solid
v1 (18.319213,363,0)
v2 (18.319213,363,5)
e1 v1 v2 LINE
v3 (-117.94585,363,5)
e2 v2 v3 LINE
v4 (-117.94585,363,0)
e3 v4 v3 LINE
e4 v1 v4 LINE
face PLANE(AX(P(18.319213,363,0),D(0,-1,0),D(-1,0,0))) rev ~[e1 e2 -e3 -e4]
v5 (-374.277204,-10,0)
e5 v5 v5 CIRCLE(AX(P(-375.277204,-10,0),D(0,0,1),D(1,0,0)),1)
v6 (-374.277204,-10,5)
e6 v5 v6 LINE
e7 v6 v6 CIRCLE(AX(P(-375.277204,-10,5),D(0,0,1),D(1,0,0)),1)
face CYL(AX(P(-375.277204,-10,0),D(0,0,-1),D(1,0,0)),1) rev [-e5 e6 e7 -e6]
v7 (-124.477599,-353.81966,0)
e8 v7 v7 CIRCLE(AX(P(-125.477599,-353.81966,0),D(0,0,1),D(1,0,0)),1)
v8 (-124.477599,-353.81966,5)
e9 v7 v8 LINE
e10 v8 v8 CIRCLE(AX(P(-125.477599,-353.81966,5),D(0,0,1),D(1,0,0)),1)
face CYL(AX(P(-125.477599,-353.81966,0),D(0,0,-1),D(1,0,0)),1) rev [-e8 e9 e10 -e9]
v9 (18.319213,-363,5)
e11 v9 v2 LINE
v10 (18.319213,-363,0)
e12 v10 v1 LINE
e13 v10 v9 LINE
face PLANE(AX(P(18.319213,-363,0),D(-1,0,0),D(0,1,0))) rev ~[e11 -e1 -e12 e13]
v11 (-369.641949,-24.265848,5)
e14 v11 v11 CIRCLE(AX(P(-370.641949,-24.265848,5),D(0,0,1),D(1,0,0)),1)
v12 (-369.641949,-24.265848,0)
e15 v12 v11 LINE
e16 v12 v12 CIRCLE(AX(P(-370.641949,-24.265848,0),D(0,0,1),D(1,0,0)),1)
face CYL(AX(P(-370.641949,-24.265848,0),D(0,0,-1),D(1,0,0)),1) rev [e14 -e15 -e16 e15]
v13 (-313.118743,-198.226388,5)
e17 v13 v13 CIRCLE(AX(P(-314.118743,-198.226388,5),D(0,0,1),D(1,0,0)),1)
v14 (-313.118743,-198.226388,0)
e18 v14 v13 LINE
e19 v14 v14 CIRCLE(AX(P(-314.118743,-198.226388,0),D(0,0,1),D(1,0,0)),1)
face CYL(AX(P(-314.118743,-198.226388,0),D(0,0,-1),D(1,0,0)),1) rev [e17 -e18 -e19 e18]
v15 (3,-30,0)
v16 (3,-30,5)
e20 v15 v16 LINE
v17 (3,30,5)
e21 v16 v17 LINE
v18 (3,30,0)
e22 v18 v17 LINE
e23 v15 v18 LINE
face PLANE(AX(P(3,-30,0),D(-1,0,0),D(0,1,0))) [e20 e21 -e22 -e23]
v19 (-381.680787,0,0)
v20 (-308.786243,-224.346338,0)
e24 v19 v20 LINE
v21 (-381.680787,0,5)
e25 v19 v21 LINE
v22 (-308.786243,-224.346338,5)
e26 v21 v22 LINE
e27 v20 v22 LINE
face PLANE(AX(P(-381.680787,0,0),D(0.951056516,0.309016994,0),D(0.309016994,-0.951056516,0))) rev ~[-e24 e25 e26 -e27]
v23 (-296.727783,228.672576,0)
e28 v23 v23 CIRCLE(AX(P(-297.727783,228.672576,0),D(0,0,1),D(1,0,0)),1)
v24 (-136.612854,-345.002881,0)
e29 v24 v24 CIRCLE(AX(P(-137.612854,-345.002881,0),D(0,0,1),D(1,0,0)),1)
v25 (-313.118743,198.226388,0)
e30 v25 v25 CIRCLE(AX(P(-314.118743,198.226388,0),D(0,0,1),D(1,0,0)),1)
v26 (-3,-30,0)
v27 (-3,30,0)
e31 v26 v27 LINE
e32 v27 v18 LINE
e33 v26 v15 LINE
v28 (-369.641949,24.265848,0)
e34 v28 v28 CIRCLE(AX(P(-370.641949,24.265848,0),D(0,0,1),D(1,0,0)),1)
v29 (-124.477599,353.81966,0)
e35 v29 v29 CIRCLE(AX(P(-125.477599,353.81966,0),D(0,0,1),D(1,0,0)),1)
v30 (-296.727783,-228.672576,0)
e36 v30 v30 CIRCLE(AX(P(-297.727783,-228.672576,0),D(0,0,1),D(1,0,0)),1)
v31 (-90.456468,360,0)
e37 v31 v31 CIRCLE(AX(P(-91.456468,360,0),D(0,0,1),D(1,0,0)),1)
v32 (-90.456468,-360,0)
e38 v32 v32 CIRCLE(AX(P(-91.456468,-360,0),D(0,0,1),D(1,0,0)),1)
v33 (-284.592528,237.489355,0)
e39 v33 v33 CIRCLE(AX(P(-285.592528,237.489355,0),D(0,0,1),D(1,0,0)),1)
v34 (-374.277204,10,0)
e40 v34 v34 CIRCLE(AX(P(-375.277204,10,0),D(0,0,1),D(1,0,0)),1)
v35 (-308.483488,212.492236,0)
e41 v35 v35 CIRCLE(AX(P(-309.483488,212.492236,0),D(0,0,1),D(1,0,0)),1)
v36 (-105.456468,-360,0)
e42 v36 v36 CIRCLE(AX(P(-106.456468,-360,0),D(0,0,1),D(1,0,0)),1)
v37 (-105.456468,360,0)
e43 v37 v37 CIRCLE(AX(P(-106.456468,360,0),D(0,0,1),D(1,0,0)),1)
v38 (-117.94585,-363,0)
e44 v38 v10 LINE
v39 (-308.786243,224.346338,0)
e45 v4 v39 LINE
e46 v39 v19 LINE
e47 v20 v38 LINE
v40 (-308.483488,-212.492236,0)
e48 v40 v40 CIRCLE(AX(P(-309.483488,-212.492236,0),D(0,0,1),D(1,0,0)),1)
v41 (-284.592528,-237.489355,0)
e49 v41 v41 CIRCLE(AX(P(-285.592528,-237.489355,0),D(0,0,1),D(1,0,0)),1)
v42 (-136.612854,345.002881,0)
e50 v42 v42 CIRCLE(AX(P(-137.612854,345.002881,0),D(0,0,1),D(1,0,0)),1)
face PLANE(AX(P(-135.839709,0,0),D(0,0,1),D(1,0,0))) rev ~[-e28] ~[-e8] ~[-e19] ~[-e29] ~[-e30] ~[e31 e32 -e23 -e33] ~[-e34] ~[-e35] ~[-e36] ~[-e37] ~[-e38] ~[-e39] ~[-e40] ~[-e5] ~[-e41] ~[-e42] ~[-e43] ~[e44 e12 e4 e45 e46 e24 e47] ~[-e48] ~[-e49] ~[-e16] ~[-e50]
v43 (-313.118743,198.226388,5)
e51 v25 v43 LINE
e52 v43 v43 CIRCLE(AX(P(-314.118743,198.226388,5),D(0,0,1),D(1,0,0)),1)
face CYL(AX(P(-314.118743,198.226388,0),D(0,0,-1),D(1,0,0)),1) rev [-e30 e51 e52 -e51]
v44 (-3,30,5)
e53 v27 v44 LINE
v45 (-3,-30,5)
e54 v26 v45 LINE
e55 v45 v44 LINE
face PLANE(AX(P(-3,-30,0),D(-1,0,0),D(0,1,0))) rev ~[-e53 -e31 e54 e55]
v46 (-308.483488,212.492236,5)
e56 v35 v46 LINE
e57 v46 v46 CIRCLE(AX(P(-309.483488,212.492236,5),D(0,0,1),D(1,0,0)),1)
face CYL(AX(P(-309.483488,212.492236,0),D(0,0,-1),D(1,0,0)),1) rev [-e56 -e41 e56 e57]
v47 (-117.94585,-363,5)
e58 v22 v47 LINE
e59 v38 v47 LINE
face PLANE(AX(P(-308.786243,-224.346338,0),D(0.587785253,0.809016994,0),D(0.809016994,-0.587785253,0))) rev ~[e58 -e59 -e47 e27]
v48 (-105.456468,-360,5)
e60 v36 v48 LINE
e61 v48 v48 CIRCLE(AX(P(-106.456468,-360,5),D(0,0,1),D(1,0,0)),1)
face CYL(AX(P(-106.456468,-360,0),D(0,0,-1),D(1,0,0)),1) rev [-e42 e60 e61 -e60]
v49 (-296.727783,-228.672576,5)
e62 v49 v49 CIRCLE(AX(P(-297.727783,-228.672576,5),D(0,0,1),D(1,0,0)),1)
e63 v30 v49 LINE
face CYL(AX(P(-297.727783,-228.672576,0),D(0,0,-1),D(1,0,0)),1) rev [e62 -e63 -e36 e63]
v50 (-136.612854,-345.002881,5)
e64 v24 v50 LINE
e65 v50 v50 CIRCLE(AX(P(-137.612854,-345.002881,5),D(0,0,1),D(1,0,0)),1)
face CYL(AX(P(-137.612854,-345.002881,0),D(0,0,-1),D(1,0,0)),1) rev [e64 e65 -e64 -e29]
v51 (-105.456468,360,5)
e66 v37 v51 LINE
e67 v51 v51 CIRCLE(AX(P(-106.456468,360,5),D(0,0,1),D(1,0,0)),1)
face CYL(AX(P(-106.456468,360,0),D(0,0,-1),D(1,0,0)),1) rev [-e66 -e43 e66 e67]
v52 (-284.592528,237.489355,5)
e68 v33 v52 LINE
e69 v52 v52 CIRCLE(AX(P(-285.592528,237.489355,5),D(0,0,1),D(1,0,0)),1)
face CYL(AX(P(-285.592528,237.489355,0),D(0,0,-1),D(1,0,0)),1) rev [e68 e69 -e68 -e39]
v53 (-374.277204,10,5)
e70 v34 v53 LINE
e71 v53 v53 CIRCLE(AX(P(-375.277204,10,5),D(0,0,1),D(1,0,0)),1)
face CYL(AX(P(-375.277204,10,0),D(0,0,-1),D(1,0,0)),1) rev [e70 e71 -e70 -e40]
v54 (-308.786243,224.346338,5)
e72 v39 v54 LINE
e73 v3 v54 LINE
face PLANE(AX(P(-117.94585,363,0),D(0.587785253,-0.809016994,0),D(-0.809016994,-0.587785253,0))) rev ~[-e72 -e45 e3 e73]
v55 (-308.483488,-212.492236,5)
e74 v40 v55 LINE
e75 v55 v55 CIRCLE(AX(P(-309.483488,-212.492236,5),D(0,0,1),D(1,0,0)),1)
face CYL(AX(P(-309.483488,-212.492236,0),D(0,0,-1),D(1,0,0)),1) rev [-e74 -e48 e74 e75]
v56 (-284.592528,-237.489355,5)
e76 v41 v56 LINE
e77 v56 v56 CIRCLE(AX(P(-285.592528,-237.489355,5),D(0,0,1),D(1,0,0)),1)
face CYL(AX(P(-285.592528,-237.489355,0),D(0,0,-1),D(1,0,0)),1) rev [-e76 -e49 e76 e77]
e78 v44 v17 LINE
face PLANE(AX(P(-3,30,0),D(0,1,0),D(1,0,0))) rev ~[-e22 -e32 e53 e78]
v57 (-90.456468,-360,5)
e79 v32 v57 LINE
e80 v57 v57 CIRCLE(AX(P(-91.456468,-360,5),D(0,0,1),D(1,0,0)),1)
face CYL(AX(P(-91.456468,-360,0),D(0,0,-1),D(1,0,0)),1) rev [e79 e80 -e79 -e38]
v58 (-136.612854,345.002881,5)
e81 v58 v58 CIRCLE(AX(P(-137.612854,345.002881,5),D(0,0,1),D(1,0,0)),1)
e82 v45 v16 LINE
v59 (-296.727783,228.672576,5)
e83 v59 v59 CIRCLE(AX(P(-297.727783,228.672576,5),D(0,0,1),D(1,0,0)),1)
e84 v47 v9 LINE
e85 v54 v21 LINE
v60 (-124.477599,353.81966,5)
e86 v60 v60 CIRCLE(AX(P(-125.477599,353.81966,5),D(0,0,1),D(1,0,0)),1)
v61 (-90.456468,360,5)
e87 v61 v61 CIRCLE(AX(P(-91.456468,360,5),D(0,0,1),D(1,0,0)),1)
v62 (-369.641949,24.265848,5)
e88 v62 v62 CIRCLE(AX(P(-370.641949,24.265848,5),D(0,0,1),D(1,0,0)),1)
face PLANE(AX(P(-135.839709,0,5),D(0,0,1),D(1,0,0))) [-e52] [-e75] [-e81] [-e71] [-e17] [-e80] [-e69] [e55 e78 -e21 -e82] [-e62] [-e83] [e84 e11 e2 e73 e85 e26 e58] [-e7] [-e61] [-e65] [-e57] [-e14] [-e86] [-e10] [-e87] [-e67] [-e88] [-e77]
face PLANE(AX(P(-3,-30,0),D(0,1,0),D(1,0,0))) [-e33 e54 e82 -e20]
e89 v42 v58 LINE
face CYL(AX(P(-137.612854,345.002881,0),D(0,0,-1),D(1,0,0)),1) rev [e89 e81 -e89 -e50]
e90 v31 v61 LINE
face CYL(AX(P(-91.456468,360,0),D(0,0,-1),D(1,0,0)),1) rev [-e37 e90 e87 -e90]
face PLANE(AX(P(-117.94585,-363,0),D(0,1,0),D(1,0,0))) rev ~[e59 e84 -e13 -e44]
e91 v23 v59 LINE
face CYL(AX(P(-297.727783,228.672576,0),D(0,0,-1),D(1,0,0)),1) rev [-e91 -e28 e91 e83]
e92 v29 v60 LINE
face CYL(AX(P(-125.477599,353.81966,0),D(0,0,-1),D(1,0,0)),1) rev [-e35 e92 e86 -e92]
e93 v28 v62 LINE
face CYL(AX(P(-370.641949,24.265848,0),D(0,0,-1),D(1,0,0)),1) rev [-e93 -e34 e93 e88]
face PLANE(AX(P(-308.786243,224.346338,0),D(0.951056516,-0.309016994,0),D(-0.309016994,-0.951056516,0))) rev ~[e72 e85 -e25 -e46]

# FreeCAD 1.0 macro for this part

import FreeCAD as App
import Part
import Sketcher
from FreeCAD import Vector
Q = App.Units.Quantity


def add_polygon(sketch, points):
    """Adds a closed chain of lines whose ends are joined by coincident constraints."""
    first, n = sketch.GeometryCount, len(points)
    for a, b in zip(points, points[1:] + points[:1]):
        sketch.addGeometry(Part.LineSegment(App.Vector(*a, 0), App.Vector(*b, 0)), False)
    for i in range(n):
        sketch.addConstraint(Sketcher.Constraint("Coincident", first + i, 2, first + (i + 1) % n, 1))

doc = App.newDocument("Part")
body = doc.addObject("PartDesign::Body", "Body")

# Sketch on XY plane
sketch1 = doc.addObject("Sketcher::SketchObject", "Sketch")
body.addObject(sketch1)
sketch1.AttachmentSupport = (doc.XY_Plane, [""])
sketch1.MapMode = "FlatFace"
add_polygon(sketch1, [(-117.9, -363), (18.3, -363), (18.3, 363), (-117.9, 363), (-308.8, 224.3), (-381.7, 0), (-308.8, -224.3)])  # lines 0-6
sketch1.addGeometry(Part.Circle(Vector(-297.7, -228.7, 0), Vector(0, 0, 1), 1), False)  # 7
sketch1.addGeometry(Part.Circle(Vector(-285.6, -237.5, 0), Vector(0, 0, 1), 1), False)  # 8
sketch1.addGeometry(Part.Circle(Vector(-309.5, -212.5, 0), Vector(0, 0, 1), 1), False)  # 9
sketch1.addGeometry(Part.Circle(Vector(-314.1, -198.2, 0), Vector(0, 0, 1), 1), False)  # 10
sketch1.addGeometry(Part.Circle(Vector(-370.6, -24.3, 0), Vector(0, 0, 1), 1), False)  # 11
sketch1.addGeometry(Part.Circle(Vector(-375.3, -10, 0), Vector(0, 0, 1), 1), False)  # 12
sketch1.addGeometry(Part.Circle(Vector(-137.6, -345, 0), Vector(0, 0, 1), 1), False)  # 13
sketch1.addGeometry(Part.Circle(Vector(-125.5, -353.8, 0), Vector(0, 0, 1), 1), False)  # 14
sketch1.addGeometry(Part.Circle(Vector(-106.5, -360, 0), Vector(0, 0, 1), 1), False)  # 15
sketch1.addGeometry(Part.Circle(Vector(-91.5, -360, 0), Vector(0, 0, 1), 1), False)  # 16
sketch1.addGeometry(Part.Circle(Vector(-375.3, 10, 0), Vector(0, 0, 1), 1), False)  # 17
sketch1.addGeometry(Part.Circle(Vector(-370.6, 24.3, 0), Vector(0, 0, 1), 1), False)  # 18
sketch1.addGeometry(Part.Circle(Vector(-314.1, 198.2, 0), Vector(0, 0, 1), 1), False)  # 19
sketch1.addGeometry(Part.Circle(Vector(-309.5, 212.5, 0), Vector(0, 0, 1), 1), False)  # 20
sketch1.addGeometry(Part.Circle(Vector(-297.7, 228.7, 0), Vector(0, 0, 1), 1), False)  # 21
sketch1.addGeometry(Part.Circle(Vector(-285.6, 237.5, 0), Vector(0, 0, 1), 1), False)  # 22
add_polygon(sketch1, [(3, -30), (-3, -30), (-3, 30), (3, 30)])  # lines 23-26
sketch1.addGeometry(Part.Circle(Vector(-137.6, 345, 0), Vector(0, 0, 1), 1), False)  # 27
sketch1.addGeometry(Part.Circle(Vector(-125.5, 353.8, 0), Vector(0, 0, 1), 1), False)  # 28
sketch1.addGeometry(Part.Circle(Vector(-106.5, 360, 0), Vector(0, 0, 1), 1), False)  # 29
sketch1.addGeometry(Part.Circle(Vector(-91.5, 360, 0), Vector(0, 0, 1), 1), False)  # 30
sketch1.addConstraint(Sketcher.Constraint("Horizontal", 0))
sketch1.addConstraint(Sketcher.Constraint("Vertical", 1))
sketch1.addConstraint(Sketcher.Constraint("Horizontal", 2))
sketch1.addConstraint(Sketcher.Constraint("Horizontal", 23))
sketch1.addConstraint(Sketcher.Constraint("Vertical", 24))
sketch1.addConstraint(Sketcher.Constraint("Horizontal", 25))
sketch1.addConstraint(Sketcher.Constraint("Vertical", 26))
sketch1.addConstraint(Sketcher.Constraint("Equal", 7, 8))
sketch1.addConstraint(Sketcher.Constraint("Equal", 8, 9))
sketch1.addConstraint(Sketcher.Constraint("Equal", 9, 10))
sketch1.addConstraint(Sketcher.Constraint("Equal", 10, 11))
sketch1.addConstraint(Sketcher.Constraint("Equal", 11, 12))
sketch1.addConstraint(Sketcher.Constraint("Equal", 12, 13))
sketch1.addConstraint(Sketcher.Constraint("Equal", 13, 14))
sketch1.addConstraint(Sketcher.Constraint("Equal", 14, 15))
sketch1.addConstraint(Sketcher.Constraint("Equal", 15, 16))
sketch1.addConstraint(Sketcher.Constraint("Equal", 16, 17))
sketch1.addConstraint(Sketcher.Constraint("Equal", 17, 18))
sketch1.addConstraint(Sketcher.Constraint("Equal", 18, 19))
sketch1.addConstraint(Sketcher.Constraint("Equal", 19, 20))
sketch1.addConstraint(Sketcher.Constraint("Equal", 20, 21))
sketch1.addConstraint(Sketcher.Constraint("Equal", 21, 22))
sketch1.addConstraint(Sketcher.Constraint("Equal", 22, 27))
sketch1.addConstraint(Sketcher.Constraint("Equal", 27, 28))
sketch1.addConstraint(Sketcher.Constraint("Equal", 28, 29))
sketch1.addConstraint(Sketcher.Constraint("Equal", 29, 30))
sketch1.addConstraint(Sketcher.Constraint("Symmetric", 23, 2, 25, 2, -1, 1))
sketch1.addConstraint(Sketcher.Constraint("Symmetric", 12, 3, 17, 3, -1))
sketch1.addConstraint(Sketcher.Constraint("Symmetric", 11, 3, 18, 3, -1))
sketch1.addConstraint(Sketcher.Constraint("Symmetric", 10, 3, 19, 3, -1))
sketch1.addConstraint(Sketcher.Constraint("Symmetric", 9, 3, 20, 3, -1))
sketch1.addConstraint(Sketcher.Constraint("Symmetric", 7, 3, 21, 3, -1))
sketch1.addConstraint(Sketcher.Constraint("Symmetric", 8, 3, 22, 3, -1))
sketch1.addConstraint(Sketcher.Constraint("Symmetric", 13, 3, 27, 3, -1))
sketch1.addConstraint(Sketcher.Constraint("Symmetric", 14, 3, 28, 3, -1))
sketch1.addConstraint(Sketcher.Constraint("Symmetric", 15, 3, 29, 3, -1))
sketch1.addConstraint(Sketcher.Constraint("Symmetric", 16, 3, 30, 3, -1))
sketch1.addConstraint(Sketcher.Constraint("Symmetric", 3, 2, 5, 2, -1))
sketch1.addConstraint(Sketcher.Constraint("Symmetric", 2, 2, 6, 2, -1))
sketch1.addConstraint(Sketcher.Constraint("PointOnObject", 4, 2, -1))
sketch1.addConstraint(Sketcher.Constraint("Horizontal", 15, 3, 16, 3))
sketch1.addConstraint(Sketcher.Constraint("Equal", 3, 4))
sketch1.addConstraint(Sketcher.Constraint("Diameter", 7, Q("2 mm")))
sketch1.addConstraint(Sketcher.Constraint("DistanceX", 23, 2, 23, 1, Q("6 mm")))
sketch1.addConstraint(Sketcher.Constraint("DistanceY", 1, 1, 1, 2, Q("726 mm")))
sketch1.addConstraint(Sketcher.Constraint("DistanceY", 24, 1, 24, 2, Q("60 mm")))
sketch1.addConstraint(Sketcher.Constraint("Angle", 3, Q("-144 deg")))
sketch1.addConstraint(Sketcher.Constraint("Angle", 4, Q("-108 deg")))
sketch1.addConstraint(Sketcher.Constraint("DistanceY", 12, 3, -1, 1, Q("10 mm")))
sketch1.addConstraint(Sketcher.Constraint("DistanceY", 15, 3, -1, 1, Q("360 mm")))
sketch1.addConstraint(Sketcher.Constraint("DistanceX", 15, 3, 16, 3, Q("15 mm")))
sketch1.addConstraint(Sketcher.Constraint("DistanceX", 14, 3, -1, 1, Q("125.477599 mm")))
sketch1.addConstraint(Sketcher.Constraint("DistanceX", 19, 3, 3, 2, Q("5.3325 mm")))
sketch1.addConstraint(Sketcher.Constraint("DistanceX", 0, 1, 0, 2, Q("136.265063 mm")))
sketch1.addConstraint(Sketcher.Constraint("DistanceX", 8, 3, -1, 1, Q("285.592528 mm")))
sketch1.addConstraint(Sketcher.Constraint("DistanceX", 9, 3, -1, 1, Q("309.483488 mm")))
sketch1.addConstraint(Sketcher.Constraint("DistanceX", 11, 3, -1, 1, Q("370.641949 mm")))
sketch1.addConstraint(Sketcher.Constraint("DistanceY", 13, 3, -1, 1, Q("345.002881 mm")))
sketch1.addConstraint(Sketcher.Constraint("DistanceY", 14, 3, -1, 1, Q("353.81966 mm")))
sketch1.addConstraint(Sketcher.Constraint("DistanceX", 15, 3, -1, 1, Q("106.456468 mm")))
sketch1.addConstraint(Sketcher.Constraint("DistanceX", 2, 2, -1, 1, Q("117.94585 mm")))
sketch1.addConstraint(Sketcher.Constraint("DistanceY", 8, 3, 7, 3, Q("8.816779 mm")))
sketch1.addConstraint(Sketcher.Constraint("DistanceY", 7, 3, 9, 3, Q("16.18034 mm")))
sketch1.addConstraint(Sketcher.Constraint("DistanceY", 9, 3, 10, 3, Q("14.265848 mm")))
sketch1.addConstraint(Sketcher.Constraint("DistanceX", 10, 3, 7, 3, Q("16.39096 mm")))
sketch1.addConstraint(Sketcher.Constraint("DistanceY", 10, 3, 11, 3, Q("173.96054 mm")))
sketch1.addConstraint(Sketcher.Constraint("DistanceX", 12, 3, 10, 3, Q("61.158461 mm")))
sketch1.addConstraint(Sketcher.Constraint("DistanceX", 7, 3, 13, 3, Q("160.114929 mm")))
sketch1.addConstraint(Sketcher.Constraint("DistanceY", 19, 3, 3, 2, Q("26.11995 mm")))
pad1 = doc.addObject("PartDesign::Pad", "Pad")
body.addObject(pad1)
pad1.Profile = sketch1
pad1.Length = 5

doc.recompute()
